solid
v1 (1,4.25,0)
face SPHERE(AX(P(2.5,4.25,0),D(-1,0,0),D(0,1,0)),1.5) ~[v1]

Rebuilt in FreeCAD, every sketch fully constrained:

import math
import FreeCAD as App
import Part
import Sketcher

V = App.Vector

doc = App.newDocument("Part")
params = doc.addObject("Spreadsheet::Sheet", "Params")
for row, (alias, value) in enumerate([
    ("sketch1_radius", "1.5 mm"),
    ("revolution_angle", "360 deg"),
], start=1):
    params.set(f"A{row}", alias)
    params.set(f"B{row}", "=" + value)
    params.setAlias(f"B{row}", alias)

body = doc.addObject("PartDesign::Body", "Body")

# Sketch on XY plane
sketch1 = body.newObject("Sketcher::SketchObject", "Sketch")
sketch1.AttachmentSupport = (doc.getObject("XY_Plane"), [""])
sketch1.MapMode = "FlatFace"
sketch1.addGeometry([
    Part.LineSegment(V(1, 4.2, 0), V(4, 4.2, 0)),
    Part.ArcOfCircle(Part.Circle(V(2.5, 4.2, 0), V(0, 0, 1), 1.5), math.radians(0), math.radians(180)),
], False)
sketch1.addGeometry(Part.LineSegment(V(1, 4.2, 0), V(4, 4.2, 0)), True)  # axis
sketch1.addConstraint([
    Sketcher.Constraint("Coincident", 0, 1, 1, 2),
    Sketcher.Constraint("Coincident", 1, 1, 0, 2),
    Sketcher.Constraint("Horizontal", 0),
    Sketcher.Constraint("Horizontal", 2),
    Sketcher.Constraint("Coincident", 2, 1, 0, 1),
    Sketcher.Constraint("Horizontal", 1, 3, 0, 1),
    Sketcher.Constraint("Equal", 0, 2),
    Sketcher.Constraint("Radius", 1, 1.5),
    Sketcher.Constraint("DistanceX", -1, 1, 0, 1, 1.0),
    Sketcher.Constraint("DistanceY", -1, 1, 1, 3, 4.25),
])
sketch1.setExpression("Constraints[7]", "Params.sketch1_radius")
revolution = body.newObject("PartDesign::Revolution", "Revolution")
revolution.Profile = sketch1
revolution.ReferenceAxis = (sketch1, ["Axis0"])
revolution.setExpression("Angle", "Params.revolution_angle")

doc.recompute()
